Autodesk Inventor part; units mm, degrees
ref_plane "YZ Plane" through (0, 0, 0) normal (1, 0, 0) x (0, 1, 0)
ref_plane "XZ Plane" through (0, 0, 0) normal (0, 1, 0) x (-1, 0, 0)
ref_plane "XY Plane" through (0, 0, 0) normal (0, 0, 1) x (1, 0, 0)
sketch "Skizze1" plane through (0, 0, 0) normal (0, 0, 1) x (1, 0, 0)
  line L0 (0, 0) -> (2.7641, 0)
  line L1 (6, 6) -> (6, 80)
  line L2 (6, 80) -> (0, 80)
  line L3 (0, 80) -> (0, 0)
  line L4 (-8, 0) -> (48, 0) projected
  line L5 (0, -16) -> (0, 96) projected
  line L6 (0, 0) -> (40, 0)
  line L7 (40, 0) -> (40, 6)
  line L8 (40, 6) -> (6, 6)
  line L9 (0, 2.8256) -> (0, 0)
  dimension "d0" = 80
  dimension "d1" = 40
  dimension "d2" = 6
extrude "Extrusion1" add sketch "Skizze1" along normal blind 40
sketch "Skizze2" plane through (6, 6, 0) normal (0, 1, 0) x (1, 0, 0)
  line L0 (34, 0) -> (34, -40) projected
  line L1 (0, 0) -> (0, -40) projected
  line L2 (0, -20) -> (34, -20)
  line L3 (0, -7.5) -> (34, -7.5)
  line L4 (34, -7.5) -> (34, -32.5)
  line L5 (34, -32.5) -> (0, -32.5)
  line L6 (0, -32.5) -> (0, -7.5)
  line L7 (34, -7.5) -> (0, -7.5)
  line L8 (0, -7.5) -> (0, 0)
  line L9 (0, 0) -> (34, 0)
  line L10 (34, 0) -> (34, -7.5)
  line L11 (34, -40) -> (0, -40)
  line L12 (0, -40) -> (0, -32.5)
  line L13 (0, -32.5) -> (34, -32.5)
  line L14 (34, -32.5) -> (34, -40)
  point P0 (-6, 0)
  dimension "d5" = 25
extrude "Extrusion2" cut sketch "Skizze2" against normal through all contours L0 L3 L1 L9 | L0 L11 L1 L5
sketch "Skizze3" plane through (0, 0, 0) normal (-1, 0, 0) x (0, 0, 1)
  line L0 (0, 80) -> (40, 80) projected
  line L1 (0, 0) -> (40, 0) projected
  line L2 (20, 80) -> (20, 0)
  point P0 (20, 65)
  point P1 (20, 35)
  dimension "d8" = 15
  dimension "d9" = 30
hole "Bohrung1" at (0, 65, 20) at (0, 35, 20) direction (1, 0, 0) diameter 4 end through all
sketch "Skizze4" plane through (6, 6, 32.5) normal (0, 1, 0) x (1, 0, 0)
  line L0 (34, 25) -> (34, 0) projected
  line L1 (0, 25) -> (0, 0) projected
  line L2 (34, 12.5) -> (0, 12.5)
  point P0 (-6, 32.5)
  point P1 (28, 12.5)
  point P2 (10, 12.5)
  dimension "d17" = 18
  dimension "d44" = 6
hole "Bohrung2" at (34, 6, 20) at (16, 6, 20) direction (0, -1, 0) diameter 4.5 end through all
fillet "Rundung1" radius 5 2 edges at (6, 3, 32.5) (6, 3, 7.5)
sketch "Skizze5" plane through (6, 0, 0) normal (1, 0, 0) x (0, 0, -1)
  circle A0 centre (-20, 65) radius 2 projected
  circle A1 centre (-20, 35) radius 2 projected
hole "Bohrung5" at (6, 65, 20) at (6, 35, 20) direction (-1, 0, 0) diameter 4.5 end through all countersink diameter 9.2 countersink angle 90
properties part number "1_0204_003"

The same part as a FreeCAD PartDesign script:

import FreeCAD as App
import Part
import Sketcher
from FreeCAD import Vector


def edges_at(feature, points):
    """Names of the edges that pass closest to the given points."""
    edges = feature.Shape.Edges
    near = lambda p: min(range(len(edges)), key=lambda i: edges[i].distToShape(Part.Vertex(*p))[0])
    return sorted({f"Edge{near(p) + 1}" for p in points})

doc = App.newDocument("Part")
body = doc.addObject("PartDesign::Body", "Body")

# Sketch on XY plane
sketch1 = body.newObject("Sketcher::SketchObject", "Sketch")
sketch1.AttachmentSupport = (doc.getObject("XY_Plane"), [""])
sketch1.MapMode = "FlatFace"
sketch1.addGeometry([
    Part.LineSegment(Vector(0, 80, 0), Vector(0, 0, 0)),  # 0
    Part.LineSegment(Vector(0, 0, 0), Vector(40, 0, 0)),  # 1
    Part.LineSegment(Vector(40, 0, 0), Vector(40, 6, 0)),  # 2
    Part.LineSegment(Vector(40, 6, 0), Vector(6, 6, 0)),  # 3
    Part.LineSegment(Vector(6, 6, 0), Vector(6, 80, 0)),  # 4
    Part.LineSegment(Vector(6, 80, 0), Vector(0, 80, 0)),  # 5
], False)
sketch1.addConstraint([
    Sketcher.Constraint("Coincident", 0, 2, 1, 1),
    Sketcher.Constraint("Coincident", 1, 2, 2, 1),
    Sketcher.Constraint("Coincident", 2, 2, 3, 1),
    Sketcher.Constraint("Coincident", 3, 2, 4, 1),
    Sketcher.Constraint("Coincident", 4, 2, 5, 1),
    Sketcher.Constraint("Coincident", 5, 2, 0, 1),
    Sketcher.Constraint("Vertical", 0),
    Sketcher.Constraint("Horizontal", 1),
    Sketcher.Constraint("Vertical", 2),
    Sketcher.Constraint("Horizontal", 3),
    Sketcher.Constraint("Vertical", 4),
    Sketcher.Constraint("Horizontal", 5),
    Sketcher.Constraint("Coincident", 0, 2, -1, 1),
    Sketcher.Constraint("Equal", 5, 2),
    Sketcher.Constraint("DistanceX", 1, 1, 1, 2, 40.0),
    Sketcher.Constraint("DistanceX", 5, 2, 5, 1, 6.0),
    Sketcher.Constraint("DistanceY", 0, 2, 0, 1, 80.0),
])
pad1 = body.newObject("PartDesign::Pad", "Pad")
pad1.Profile = sketch1
pad1.Length = 40

# Sketch on XZ plane
sketch2 = body.newObject("Sketcher::SketchObject", "Sketch001")
sketch2.AttachmentSupport = (doc.getObject("XZ_Plane"), [""])
sketch2.MapMode = "FlatFace"
sketch2.AttachmentOffset = App.Placement(Vector(0, 0, -6), App.Rotation())
sketch2.addGeometry([
    Part.LineSegment(Vector(40, 8, 0), Vector(40, 0, 0)),  # 0
    Part.LineSegment(Vector(40, 0, 0), Vector(6, 0, 0)),  # 1
    Part.LineSegment(Vector(6, 0, 0), Vector(6, 8, 0)),  # 2
    Part.LineSegment(Vector(6, 8, 0), Vector(40, 8, 0)),  # 3
    Part.LineSegment(Vector(40, 40, 0), Vector(40, 32, 0)),  # 4
    Part.LineSegment(Vector(40, 32, 0), Vector(6, 32, 0)),  # 5
    Part.LineSegment(Vector(6, 32, 0), Vector(6, 40, 0)),  # 6
    Part.LineSegment(Vector(6, 40, 0), Vector(40, 40, 0)),  # 7
], False)
sketch2.addConstraint([
    Sketcher.Constraint("Coincident", 0, 2, 1, 1),
    Sketcher.Constraint("Coincident", 1, 2, 2, 1),
    Sketcher.Constraint("Coincident", 2, 2, 3, 1),
    Sketcher.Constraint("Coincident", 3, 2, 0, 1),
    Sketcher.Constraint("Coincident", 4, 2, 5, 1),
    Sketcher.Constraint("Coincident", 5, 2, 6, 1),
    Sketcher.Constraint("Coincident", 6, 2, 7, 1),
    Sketcher.Constraint("Coincident", 7, 2, 4, 1),
    Sketcher.Constraint("Vertical", 0),
    Sketcher.Constraint("Horizontal", 1),
    Sketcher.Constraint("Vertical", 2),
    Sketcher.Constraint("Horizontal", 3),
    Sketcher.Constraint("Vertical", 4),
    Sketcher.Constraint("Horizontal", 5),
    Sketcher.Constraint("Vertical", 6),
    Sketcher.Constraint("Horizontal", 7),
    Sketcher.Constraint("PointOnObject", 0, 2, -1),
    Sketcher.Constraint("Vertical", 3, 2, 4, 2),
    Sketcher.Constraint("Vertical", 2, 2, 5, 2),
    Sketcher.Constraint("Equal", 2, 4),
    Sketcher.Constraint("DistanceY", 3, 2, 4, 2, 25.0),
    Sketcher.Constraint("DistanceX", 1, 2, 1, 1, 34.0),
    Sketcher.Constraint("DistanceY", 0, 2, 0, 1, 7.5),
    Sketcher.Constraint("DistanceX", -1, 1, 0, 2, 40.0),
])
pocket1 = body.newObject("PartDesign::Pocket", "Pocket")
pocket1.Profile = sketch2
pocket1.Type = "ThroughAll"
pocket1.Reversed = True

# Sketch on YZ plane
sketch3 = body.newObject("Sketcher::SketchObject", "Sketch002")
sketch3.AttachmentSupport = (doc.getObject("YZ_Plane"), [""])
sketch3.MapMode = "FlatFace"
sketch3.addGeometry([
    Part.Circle(Vector(65, 20, 0), Vector(0, 0, 1), 2),
    Part.Circle(Vector(35, 20, 0), Vector(0, 0, 1), 2),
], False)
sketch3.addConstraint([
    Sketcher.Constraint("Equal", 0, 1),
    Sketcher.Constraint("Horizontal", 0, 3, 1, 3),
    Sketcher.Constraint("Diameter", 0, 4.0),
    Sketcher.Constraint("DistanceX", -1, 1, 0, 3, 65.0),
    Sketcher.Constraint("DistanceY", -1, 1, 0, 3, 20.0),
    Sketcher.Constraint("DistanceX", -1, 1, 1, 3, 35.0),
])
doc.recompute()
hole = body.newObject("PartDesign::Hole", "Hole")
hole.Profile = sketch3
hole.ThreadType = "None"
hole.Diameter = 4
hole.DepthType = "ThroughAll"
hole.Reversed = True

# Sketch on XZ plane
sketch4 = body.newObject("Sketcher::SketchObject", "Sketch003")
sketch4.AttachmentSupport = (doc.getObject("XZ_Plane"), [""])
sketch4.MapMode = "FlatFace"
sketch4.AttachmentOffset = App.Placement(Vector(0, 0, -6), App.Rotation())
sketch4.addGeometry([
    Part.Circle(Vector(34, 20, 0), Vector(0, 0, 1), 2.2),
    Part.Circle(Vector(16, 20, 0), Vector(0, 0, 1), 2.2),
], False)
sketch4.addConstraint([
    Sketcher.Constraint("Equal", 0, 1),
    Sketcher.Constraint("Horizontal", 0, 3, 1, 3),
    Sketcher.Constraint("Diameter", 0, 4.5),
    Sketcher.Constraint("DistanceX", -1, 1, 0, 3, 34.0),
    Sketcher.Constraint("DistanceY", -1, 1, 0, 3, 20.0),
    Sketcher.Constraint("DistanceX", -1, 1, 1, 3, 16.0),
])
doc.recompute()
hole2 = body.newObject("PartDesign::Hole", "Hole001")
hole2.Profile = sketch4
hole2.ThreadType = "None"
hole2.Diameter = 4.5
hole2.DepthType = "ThroughAll"
hole2.Reversed = True
doc.recompute()

fillet = body.newObject("PartDesign::Fillet", "Fillet")
fillet.Base = (hole2, edges_at(hole2, [(6, 3, 32.5), (6, 3, 7.5)]))
fillet.Radius = 5

# Sketch on YZ plane
sketch5 = body.newObject("Sketcher::SketchObject", "Sketch004")
sketch5.AttachmentSupport = (doc.getObject("YZ_Plane"), [""])
sketch5.MapMode = "FlatFace"
sketch5.AttachmentOffset = App.Placement(Vector(0, 0, 6), App.Rotation())
sketch5.addGeometry([
    Part.Circle(Vector(65, 20, 0), Vector(0, 0, 1), 2.2),
    Part.Circle(Vector(35, 20, 0), Vector(0, 0, 1), 2.2),
], False)
sketch5.addConstraint([
    Sketcher.Constraint("Equal", 0, 1),
    Sketcher.Constraint("Horizontal", 0, 3, 1, 3),
    Sketcher.Constraint("Diameter", 0, 4.5),
    Sketcher.Constraint("DistanceX", -1, 1, 0, 3, 65.0),
    Sketcher.Constraint("DistanceY", -1, 1, 0, 3, 20.0),
    Sketcher.Constraint("DistanceX", -1, 1, 1, 3, 35.0),
])
doc.recompute()
hole3 = body.newObject("PartDesign::Hole", "Hole002")
hole3.Profile = sketch5
hole3.ThreadType = "None"
hole3.Diameter = 4.5
hole3.DepthType = "ThroughAll"
hole3.HoleCutType = "Countersink"
hole3.HoleCutDiameter = 9.2
hole3.HoleCutCountersinkAngle = 90

doc.recompute()
